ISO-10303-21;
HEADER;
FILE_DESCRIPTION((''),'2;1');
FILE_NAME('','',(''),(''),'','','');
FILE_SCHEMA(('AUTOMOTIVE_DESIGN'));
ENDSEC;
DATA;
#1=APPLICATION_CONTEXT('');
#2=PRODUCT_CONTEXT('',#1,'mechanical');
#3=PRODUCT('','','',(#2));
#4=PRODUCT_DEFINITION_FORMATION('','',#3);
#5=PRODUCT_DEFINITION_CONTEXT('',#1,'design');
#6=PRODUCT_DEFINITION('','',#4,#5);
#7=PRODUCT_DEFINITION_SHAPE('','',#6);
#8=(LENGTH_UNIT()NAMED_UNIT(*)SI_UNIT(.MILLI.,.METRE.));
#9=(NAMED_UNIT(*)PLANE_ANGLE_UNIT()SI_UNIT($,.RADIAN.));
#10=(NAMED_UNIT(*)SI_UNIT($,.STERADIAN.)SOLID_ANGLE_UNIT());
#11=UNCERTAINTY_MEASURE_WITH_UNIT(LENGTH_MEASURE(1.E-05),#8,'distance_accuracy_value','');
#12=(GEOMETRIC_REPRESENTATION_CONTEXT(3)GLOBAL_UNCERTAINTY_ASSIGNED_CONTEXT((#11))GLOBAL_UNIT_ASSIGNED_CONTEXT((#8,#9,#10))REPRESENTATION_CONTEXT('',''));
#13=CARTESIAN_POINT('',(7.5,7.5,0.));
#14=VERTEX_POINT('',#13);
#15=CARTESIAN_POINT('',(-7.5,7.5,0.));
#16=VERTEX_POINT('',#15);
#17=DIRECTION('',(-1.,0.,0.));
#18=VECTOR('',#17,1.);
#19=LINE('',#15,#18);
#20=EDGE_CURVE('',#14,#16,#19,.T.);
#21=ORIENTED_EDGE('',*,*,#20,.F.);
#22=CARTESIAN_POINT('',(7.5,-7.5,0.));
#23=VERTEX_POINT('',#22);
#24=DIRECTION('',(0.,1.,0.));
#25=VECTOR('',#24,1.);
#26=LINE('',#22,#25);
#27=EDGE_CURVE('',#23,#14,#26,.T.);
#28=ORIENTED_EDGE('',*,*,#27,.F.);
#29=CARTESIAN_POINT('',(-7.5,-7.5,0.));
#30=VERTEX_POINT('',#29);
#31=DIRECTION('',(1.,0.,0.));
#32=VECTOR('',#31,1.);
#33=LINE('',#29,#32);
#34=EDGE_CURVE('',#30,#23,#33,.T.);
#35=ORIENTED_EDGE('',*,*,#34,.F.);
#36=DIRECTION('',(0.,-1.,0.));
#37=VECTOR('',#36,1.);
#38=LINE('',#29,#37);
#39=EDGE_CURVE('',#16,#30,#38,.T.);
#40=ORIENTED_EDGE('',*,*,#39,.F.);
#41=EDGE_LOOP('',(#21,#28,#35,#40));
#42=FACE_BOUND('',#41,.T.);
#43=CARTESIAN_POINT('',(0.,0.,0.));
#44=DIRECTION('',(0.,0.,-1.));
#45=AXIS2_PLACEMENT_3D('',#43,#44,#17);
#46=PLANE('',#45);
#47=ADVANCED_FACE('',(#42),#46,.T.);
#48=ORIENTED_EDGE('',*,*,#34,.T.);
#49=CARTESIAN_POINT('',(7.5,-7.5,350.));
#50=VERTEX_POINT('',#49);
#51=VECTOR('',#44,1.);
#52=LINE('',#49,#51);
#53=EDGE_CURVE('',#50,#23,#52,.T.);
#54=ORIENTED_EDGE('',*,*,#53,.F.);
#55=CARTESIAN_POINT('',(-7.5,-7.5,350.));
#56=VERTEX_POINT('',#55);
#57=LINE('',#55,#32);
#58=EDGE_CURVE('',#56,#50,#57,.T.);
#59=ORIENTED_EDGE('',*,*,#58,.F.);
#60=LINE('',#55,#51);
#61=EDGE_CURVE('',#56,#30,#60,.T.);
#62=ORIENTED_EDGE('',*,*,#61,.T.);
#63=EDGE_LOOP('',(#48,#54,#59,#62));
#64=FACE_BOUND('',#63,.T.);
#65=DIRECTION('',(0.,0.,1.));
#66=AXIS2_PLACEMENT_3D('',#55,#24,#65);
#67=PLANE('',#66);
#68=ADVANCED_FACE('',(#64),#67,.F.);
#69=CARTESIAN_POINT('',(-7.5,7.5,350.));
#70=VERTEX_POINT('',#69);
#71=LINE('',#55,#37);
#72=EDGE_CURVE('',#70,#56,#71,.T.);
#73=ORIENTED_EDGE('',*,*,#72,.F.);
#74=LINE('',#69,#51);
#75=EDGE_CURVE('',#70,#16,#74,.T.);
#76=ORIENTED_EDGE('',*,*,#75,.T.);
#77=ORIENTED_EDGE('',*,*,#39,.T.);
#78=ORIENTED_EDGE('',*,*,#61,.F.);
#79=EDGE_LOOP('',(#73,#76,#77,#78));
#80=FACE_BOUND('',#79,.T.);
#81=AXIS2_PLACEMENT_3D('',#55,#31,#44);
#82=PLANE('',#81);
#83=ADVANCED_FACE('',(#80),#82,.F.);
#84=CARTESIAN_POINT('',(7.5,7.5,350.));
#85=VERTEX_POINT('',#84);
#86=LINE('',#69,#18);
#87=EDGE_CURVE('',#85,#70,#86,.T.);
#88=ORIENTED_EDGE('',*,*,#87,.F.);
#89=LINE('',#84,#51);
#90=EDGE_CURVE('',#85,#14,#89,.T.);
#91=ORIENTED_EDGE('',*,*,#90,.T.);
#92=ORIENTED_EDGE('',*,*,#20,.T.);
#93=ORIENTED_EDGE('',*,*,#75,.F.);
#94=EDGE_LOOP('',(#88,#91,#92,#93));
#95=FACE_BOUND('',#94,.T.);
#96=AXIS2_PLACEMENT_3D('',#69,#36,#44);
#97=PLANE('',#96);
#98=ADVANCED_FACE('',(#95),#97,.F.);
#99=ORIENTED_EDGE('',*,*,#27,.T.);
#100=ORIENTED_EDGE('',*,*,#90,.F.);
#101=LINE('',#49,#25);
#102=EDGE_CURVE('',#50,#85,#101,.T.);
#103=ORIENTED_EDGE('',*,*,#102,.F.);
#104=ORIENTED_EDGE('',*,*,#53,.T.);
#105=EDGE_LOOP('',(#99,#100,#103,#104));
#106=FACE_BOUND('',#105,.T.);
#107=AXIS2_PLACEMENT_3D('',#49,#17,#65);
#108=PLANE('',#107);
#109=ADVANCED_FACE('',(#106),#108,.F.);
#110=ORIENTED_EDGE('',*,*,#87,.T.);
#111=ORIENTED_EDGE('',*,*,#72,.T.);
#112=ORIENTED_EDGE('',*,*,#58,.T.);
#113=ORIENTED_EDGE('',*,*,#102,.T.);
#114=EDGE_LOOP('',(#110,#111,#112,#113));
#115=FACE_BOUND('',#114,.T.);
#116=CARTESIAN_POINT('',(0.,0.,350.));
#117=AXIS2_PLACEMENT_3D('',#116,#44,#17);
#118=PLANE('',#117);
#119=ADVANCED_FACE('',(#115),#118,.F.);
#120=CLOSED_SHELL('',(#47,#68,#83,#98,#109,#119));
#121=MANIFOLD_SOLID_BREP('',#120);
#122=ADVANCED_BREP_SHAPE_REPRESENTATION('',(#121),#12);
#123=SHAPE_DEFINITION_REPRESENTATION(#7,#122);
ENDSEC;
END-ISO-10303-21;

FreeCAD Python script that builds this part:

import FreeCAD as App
import Part
import Sketcher
from FreeCAD import Vector

doc = App.newDocument("Part")
body = doc.addObject("PartDesign::Body", "Body")

sketch1 = doc.addObject("Sketcher::SketchObject", "Sketch")
body.addObject(sketch1)
sketch1.AttachmentSupport = (doc.XY_Plane, [""])
sketch1.MapMode = "FlatFace"
sketch1.addGeometry([
    Part.LineSegment(Vector(-8, 8, 0), Vector(-8, -8, 0)),
    Part.LineSegment(Vector(-8, -8, 0), Vector(8, -8, 0)),
    Part.LineSegment(Vector(8, -8, 0), Vector(8, 8, 0)),
    Part.LineSegment(Vector(8, 8, 0), Vector(-8, 8, 0)),
], False)
sketch1.addConstraint([
    Sketcher.Constraint("Coincident", 0, 2, 1, 1),
    Sketcher.Constraint("Coincident", 1, 2, 2, 1),
    Sketcher.Constraint("Coincident", 2, 2, 3, 1),
    Sketcher.Constraint("Coincident", 3, 2, 0, 1),
    Sketcher.Constraint("Vertical", 0),
    Sketcher.Constraint("Horizontal", 1),
    Sketcher.Constraint("Vertical", 2),
    Sketcher.Constraint("Horizontal", 3),
    Sketcher.Constraint("Symmetric", 0, 2, 2, 2, -1, 1),
    Sketcher.Constraint("Equal", 3, 0),
    Sketcher.Constraint("DistanceX", 1, 1, 1, 2, 15.0),
])
pad1 = doc.addObject("PartDesign::Pad", "Pad")
body.addObject(pad1)
pad1.Profile = sketch1
pad1.Length = 350

doc.recompute()
